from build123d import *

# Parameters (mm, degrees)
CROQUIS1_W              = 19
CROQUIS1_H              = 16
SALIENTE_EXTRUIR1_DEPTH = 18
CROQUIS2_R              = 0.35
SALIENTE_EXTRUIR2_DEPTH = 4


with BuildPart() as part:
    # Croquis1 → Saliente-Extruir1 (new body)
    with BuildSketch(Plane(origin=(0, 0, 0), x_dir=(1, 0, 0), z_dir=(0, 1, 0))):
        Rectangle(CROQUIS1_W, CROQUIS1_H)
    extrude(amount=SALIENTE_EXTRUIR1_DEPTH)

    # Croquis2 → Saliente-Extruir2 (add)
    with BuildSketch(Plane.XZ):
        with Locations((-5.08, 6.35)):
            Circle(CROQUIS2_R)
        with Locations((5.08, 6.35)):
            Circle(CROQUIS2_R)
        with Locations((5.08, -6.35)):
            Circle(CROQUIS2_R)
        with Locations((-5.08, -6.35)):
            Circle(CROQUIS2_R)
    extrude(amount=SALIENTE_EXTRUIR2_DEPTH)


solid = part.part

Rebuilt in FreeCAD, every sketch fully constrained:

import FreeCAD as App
import Part
import Sketcher

V = App.Vector
Q = App.Units.Quantity


def add_polygon(sketch, points):
    """Adds a closed chain of lines whose ends are joined by coincident constraints."""
    first, n = sketch.GeometryCount, len(points)
    for a, b in zip(points, points[1:] + points[:1]):
        sketch.addGeometry(Part.LineSegment(App.Vector(*a, 0), App.Vector(*b, 0)), False)
    for i in range(n):
        sketch.addConstraint(Sketcher.Constraint("Coincident", first + i, 2, first + (i + 1) % n, 1))

doc = App.newDocument("Part")
body = doc.addObject("PartDesign::Body", "Body")

# Sketch on XZ plane
sketch1 = body.newObject("Sketcher::SketchObject", "Sketch")
sketch1.AttachmentSupport = (doc.getObject("XZ_Plane"), [""])
sketch1.MapMode = "FlatFace"
add_polygon(sketch1, [(-9.5, -8), (-9.5, 8), (9.5, 8), (9.5, -8)])  # lines 0-3
sketch1.addConstraint([
    Sketcher.Constraint("Vertical", 0),
    Sketcher.Constraint("Horizontal", 1),
    Sketcher.Constraint("Vertical", 2),
    Sketcher.Constraint("Horizontal", 3),
    Sketcher.Constraint("Symmetric", 0, 2, 2, 2, -1, 1),
    Sketcher.Constraint("DistanceX", 1, 1, 1, 2, Q("19 mm")),
    Sketcher.Constraint("DistanceY", 0, 1, 0, 2, Q("16 mm")),
])
pad1 = body.newObject("PartDesign::Pad", "Pad")
pad1.Profile = sketch1
pad1.Length = 18
pad1.Reversed = True

# Sketch on XZ plane
sketch2 = body.newObject("Sketcher::SketchObject", "Sketch001")
sketch2.AttachmentSupport = (doc.getObject("XZ_Plane"), [""])
sketch2.MapMode = "FlatFace"
sketch2.addGeometry([
    Part.Circle(V(-5.08, 6.35, 0), V(0, 0, 1), 0.35),
    Part.Circle(V(5.08, 6.35, 0), V(0, 0, 1), 0.35),
    Part.Circle(V(5.08, -6.35, 0), V(0, 0, 1), 0.35),
    Part.Circle(V(-5.08, -6.35, 0), V(0, 0, 1), 0.35),
], False)
sketch2.addConstraint([
    Sketcher.Constraint("Equal", 0, 1),
    Sketcher.Constraint("Equal", 1, 2),
    Sketcher.Constraint("Equal", 2, 3),
    Sketcher.Constraint("Symmetric", 0, 3, 2, 3, -1, 1),
    Sketcher.Constraint("Symmetric", 1, 3, 3, 3, -1, 1),
    Sketcher.Constraint("Symmetric", 0, 3, 1, 3, -2),
    Sketcher.Constraint("Diameter", 0, Q("0.7 mm")),
    Sketcher.Constraint("DistanceY", 2, 3, 1, 3, Q("12.7 mm")),
    Sketcher.Constraint("DistanceX", 0, 3, -1, 1, Q("5.08 mm")),
])
pad2 = body.newObject("PartDesign::Pad", "Pad001")
pad2.Profile = sketch2
pad2.Length = 4

doc.recompute()
